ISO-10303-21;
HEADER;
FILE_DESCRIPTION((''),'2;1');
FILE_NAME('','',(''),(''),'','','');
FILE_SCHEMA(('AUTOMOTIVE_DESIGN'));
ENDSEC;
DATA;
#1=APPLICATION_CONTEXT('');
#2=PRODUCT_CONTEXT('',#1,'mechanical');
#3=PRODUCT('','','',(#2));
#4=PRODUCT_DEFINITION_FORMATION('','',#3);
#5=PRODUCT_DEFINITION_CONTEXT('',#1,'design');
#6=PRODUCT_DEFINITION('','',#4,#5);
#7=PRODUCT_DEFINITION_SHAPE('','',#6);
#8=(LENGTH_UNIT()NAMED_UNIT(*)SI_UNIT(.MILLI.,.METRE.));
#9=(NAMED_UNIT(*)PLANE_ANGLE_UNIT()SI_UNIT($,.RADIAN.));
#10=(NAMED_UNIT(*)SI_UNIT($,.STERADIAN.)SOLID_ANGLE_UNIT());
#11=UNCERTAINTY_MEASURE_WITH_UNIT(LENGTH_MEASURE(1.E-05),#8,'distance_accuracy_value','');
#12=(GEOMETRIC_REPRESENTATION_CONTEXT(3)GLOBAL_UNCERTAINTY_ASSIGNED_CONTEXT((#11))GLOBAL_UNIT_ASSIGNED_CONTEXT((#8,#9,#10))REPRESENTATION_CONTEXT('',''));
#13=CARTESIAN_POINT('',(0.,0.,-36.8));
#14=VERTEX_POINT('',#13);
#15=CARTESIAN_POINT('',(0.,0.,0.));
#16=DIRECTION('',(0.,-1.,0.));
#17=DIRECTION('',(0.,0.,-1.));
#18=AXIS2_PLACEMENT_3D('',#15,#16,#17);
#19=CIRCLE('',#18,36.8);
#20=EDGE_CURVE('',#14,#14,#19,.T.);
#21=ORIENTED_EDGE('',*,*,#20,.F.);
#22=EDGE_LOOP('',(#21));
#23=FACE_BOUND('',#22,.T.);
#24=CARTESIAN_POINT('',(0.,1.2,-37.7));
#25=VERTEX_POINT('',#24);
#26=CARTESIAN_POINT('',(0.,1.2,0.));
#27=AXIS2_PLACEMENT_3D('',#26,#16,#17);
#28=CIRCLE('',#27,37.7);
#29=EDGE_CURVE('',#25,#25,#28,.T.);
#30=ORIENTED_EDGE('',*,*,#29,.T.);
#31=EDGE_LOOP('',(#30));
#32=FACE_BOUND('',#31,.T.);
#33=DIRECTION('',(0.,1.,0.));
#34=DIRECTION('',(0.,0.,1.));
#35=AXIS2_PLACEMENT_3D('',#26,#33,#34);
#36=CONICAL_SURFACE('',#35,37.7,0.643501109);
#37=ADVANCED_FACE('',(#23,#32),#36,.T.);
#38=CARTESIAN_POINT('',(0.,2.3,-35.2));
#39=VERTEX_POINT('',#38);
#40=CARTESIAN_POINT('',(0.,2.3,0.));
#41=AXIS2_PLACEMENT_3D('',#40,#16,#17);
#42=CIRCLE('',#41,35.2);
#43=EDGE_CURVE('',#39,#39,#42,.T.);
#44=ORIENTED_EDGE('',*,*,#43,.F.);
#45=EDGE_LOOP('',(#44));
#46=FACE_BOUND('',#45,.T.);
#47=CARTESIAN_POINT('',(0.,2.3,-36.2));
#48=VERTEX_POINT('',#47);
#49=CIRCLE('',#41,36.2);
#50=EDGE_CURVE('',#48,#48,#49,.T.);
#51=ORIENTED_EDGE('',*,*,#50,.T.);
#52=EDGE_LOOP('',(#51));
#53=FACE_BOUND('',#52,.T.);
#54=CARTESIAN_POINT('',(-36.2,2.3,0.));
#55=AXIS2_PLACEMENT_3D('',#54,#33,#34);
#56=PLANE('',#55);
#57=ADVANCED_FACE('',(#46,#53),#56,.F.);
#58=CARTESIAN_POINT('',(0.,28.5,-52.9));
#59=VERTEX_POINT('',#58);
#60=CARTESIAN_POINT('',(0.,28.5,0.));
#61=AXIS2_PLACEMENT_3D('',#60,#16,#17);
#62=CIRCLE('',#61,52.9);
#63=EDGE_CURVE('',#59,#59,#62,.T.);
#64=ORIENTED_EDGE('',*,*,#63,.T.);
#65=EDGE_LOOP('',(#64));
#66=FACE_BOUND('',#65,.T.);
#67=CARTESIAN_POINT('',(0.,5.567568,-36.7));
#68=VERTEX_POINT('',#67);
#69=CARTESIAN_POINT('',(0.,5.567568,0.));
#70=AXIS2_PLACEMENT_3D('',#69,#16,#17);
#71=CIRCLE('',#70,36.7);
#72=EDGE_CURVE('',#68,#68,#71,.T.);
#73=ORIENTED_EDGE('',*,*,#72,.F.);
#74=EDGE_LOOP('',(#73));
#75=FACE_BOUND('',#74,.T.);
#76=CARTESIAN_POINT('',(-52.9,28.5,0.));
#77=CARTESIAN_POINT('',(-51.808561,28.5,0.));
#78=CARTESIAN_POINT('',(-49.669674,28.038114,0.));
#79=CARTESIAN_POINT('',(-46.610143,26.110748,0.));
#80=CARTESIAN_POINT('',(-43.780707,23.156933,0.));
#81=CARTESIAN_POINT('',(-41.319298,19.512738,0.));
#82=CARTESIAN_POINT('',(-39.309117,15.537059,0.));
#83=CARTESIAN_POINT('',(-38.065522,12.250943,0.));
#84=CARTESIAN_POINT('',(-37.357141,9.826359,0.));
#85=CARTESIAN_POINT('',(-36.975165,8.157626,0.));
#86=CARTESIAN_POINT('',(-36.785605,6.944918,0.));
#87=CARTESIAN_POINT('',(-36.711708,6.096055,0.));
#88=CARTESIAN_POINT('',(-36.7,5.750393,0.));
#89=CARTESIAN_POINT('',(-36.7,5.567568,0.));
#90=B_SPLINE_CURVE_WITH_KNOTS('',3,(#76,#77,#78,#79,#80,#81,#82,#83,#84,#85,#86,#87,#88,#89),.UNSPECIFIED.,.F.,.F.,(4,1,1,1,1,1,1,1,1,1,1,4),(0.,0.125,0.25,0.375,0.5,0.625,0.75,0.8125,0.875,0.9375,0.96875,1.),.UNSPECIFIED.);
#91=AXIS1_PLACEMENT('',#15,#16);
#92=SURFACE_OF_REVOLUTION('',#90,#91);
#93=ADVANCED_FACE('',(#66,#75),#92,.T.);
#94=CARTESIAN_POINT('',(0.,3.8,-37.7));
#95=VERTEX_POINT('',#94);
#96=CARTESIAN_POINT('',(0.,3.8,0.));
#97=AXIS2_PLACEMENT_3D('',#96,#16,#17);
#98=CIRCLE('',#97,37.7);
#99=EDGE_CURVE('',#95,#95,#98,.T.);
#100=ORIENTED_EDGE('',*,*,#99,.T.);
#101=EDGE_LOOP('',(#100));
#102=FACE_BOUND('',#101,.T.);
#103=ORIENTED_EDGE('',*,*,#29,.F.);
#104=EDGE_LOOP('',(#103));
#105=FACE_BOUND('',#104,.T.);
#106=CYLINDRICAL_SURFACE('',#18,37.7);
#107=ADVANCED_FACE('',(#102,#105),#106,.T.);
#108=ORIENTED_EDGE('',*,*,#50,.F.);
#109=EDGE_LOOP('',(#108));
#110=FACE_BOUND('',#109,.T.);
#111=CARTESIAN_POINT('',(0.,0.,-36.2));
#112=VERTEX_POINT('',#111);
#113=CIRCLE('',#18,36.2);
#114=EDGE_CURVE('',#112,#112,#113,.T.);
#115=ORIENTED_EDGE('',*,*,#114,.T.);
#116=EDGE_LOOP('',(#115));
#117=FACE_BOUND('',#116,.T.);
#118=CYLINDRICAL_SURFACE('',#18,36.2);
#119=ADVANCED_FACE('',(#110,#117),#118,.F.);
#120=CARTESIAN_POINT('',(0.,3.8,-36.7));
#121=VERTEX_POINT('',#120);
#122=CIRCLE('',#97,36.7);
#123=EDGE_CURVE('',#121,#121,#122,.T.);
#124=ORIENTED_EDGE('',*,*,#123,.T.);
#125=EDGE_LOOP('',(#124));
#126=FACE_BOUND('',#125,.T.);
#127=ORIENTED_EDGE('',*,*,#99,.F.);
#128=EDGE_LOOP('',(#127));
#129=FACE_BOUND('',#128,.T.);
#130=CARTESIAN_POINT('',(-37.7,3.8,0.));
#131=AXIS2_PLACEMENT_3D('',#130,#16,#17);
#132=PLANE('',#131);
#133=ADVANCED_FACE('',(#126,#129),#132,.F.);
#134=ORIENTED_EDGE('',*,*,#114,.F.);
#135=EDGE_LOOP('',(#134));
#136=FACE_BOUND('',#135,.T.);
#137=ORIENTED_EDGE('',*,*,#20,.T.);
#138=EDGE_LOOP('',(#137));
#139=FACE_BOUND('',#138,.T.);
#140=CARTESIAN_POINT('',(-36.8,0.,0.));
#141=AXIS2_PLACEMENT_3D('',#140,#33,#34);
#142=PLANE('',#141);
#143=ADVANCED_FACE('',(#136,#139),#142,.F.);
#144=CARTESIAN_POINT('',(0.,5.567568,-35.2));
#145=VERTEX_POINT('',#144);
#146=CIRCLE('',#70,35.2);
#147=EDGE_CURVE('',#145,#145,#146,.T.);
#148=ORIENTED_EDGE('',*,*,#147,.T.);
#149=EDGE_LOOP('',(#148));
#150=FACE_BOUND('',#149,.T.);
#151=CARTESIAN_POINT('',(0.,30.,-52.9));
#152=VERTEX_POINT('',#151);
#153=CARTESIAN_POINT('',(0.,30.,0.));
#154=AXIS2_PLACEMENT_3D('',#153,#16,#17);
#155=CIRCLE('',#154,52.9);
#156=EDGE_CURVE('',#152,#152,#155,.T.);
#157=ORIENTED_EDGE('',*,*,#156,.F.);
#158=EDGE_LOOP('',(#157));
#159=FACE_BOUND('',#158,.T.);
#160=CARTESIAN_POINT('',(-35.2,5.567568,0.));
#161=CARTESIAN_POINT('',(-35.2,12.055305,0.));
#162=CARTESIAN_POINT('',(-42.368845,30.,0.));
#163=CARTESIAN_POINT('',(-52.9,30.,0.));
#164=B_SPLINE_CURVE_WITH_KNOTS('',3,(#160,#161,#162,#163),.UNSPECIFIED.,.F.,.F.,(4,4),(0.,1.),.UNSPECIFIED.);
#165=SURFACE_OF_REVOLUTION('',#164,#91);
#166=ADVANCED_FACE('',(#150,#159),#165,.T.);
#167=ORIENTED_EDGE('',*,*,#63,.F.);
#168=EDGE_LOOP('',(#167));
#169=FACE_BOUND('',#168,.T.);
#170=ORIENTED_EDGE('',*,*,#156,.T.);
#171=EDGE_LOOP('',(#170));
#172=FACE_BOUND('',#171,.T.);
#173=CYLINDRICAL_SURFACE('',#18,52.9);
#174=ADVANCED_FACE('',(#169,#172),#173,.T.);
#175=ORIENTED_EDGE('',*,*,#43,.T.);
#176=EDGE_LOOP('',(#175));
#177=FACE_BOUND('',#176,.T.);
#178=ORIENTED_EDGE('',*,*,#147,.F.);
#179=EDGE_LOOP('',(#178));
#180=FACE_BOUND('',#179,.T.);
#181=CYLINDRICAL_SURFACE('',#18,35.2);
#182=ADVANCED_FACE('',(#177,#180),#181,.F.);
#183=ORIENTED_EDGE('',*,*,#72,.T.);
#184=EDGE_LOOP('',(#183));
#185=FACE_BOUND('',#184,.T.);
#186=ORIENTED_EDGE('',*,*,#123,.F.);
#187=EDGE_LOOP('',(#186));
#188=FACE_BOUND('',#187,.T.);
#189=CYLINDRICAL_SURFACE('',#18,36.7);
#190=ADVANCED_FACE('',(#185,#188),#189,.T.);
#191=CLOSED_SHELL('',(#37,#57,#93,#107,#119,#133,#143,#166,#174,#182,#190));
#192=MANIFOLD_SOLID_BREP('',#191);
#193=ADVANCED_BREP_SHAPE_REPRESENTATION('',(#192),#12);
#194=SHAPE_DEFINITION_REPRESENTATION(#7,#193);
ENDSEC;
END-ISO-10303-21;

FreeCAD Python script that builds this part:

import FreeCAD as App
import Part
import Sketcher
from FreeCAD import Vector
Q = App.Units.Quantity

doc = App.newDocument("Part")
params = doc.addObject("Spreadsheet::Sheet", "Params")
for row, (alias, value) in enumerate([
    ("sketch1_width", "1 mm"),
    ("sketch1_width2", "0.6 mm"),
    ("sketch1_height", "2.3 mm"),
    ("sketch1_height2", "2.6 mm"),
    ("sketch1_length", "1.5 mm"),
    ("revolution_angle", "360 deg"),
], start=1):
    params.set(f"A{row}", alias)
    params.set(f"B{row}", "=" + value)
    params.setAlias(f"B{row}", alias)

body = doc.addObject("PartDesign::Body", "Body")

# Sketch on XY plane
sketch1 = doc.addObject("Sketcher::SketchObject", "Sketch")
body.addObject(sketch1)
sketch1.AttachmentSupport = (doc.XY_Plane, [""])
sketch1.MapMode = "FlatFace"
sketch1.addGeometry([
    Part.LineSegment(Vector(-36.8, 0, 0), Vector(-36.2, 0, 0)),  # 0
    Part.LineSegment(Vector(-36.2, 0, 0), Vector(-36.2, 2.3, 0)),  # 1
    Part.LineSegment(Vector(-36.2, 2.3, 0), Vector(-35.2, 2.3, 0)),  # 2
    Part.LineSegment(Vector(-35.2, 2.3, 0), Vector(-35.2, 5.567568, 0)),  # 3
    Part.BSplineCurve([Vector(-35.2, 5.567568, 0), Vector(-35.2, 12.055305, 0), Vector(-42.368845, 30, 0), Vector(-52.9, 30, 0)], [4, 4], [0, 1], False, 3, [1, 1, 1, 1], False),  # 4
    Part.LineSegment(Vector(-52.9, 30, 0), Vector(-52.9, 28.5, 0)),  # 5
    Part.BSplineCurve([Vector(-36.7, 5.567568, 0), Vector(-36.7, 5.750393, 0), Vector(-36.711708, 6.096055, 0), Vector(-36.785605, 6.944918, 0), Vector(-36.975165, 8.157626, 0), Vector(-37.357141, 9.826359, 0), Vector(-38.065522, 12.250943, 0), Vector(-39.309117, 15.537059, 0), Vector(-41.319298, 19.512738, 0), Vector(-43.780707, 23.156933, 0), Vector(-46.610143, 26.110748, 0), Vector(-49.669674, 28.038114, 0), Vector(-51.808561, 28.5, 0), Vector(-52.9, 28.5, 0)], [4, 1, 1, 1, 1, 1, 1, 1, 1, 1, 1, 4], [0, 0.03125, 0.0625, 0.125, 0.1875, 0.25, 0.375, 0.5, 0.625, 0.75, 0.875, 1], False, 3, [1, 1, 1, 1, 1, 1, 1, 1, 1, 1, 1, 1, 1, 1], False),  # 6
    Part.LineSegment(Vector(-36.7, 5.567568, 0), Vector(-36.7, 3.8, 0)),  # 7
    Part.LineSegment(Vector(-36.7, 3.8, 0), Vector(-37.7, 3.8, 0)),  # 8
    Part.LineSegment(Vector(-37.7, 3.8, 0), Vector(-37.7, 1.2, 0)),  # 9
    Part.LineSegment(Vector(-37.7, 1.2, 0), Vector(-36.8, 0, 0)),  # 10
], False)
sketch1.addConstraint([
    Sketcher.Constraint("Block", 4),
    Sketcher.Constraint("Block", 6),
    Sketcher.Constraint("Coincident", 0, 2, 1, 1),
    Sketcher.Constraint("Coincident", 1, 2, 2, 1),
    Sketcher.Constraint("Coincident", 2, 2, 3, 1),
    Sketcher.Constraint("Coincident", 3, 2, 4, 1),
    Sketcher.Constraint("Coincident", 4, 2, 5, 1),
    Sketcher.Constraint("Coincident", 5, 2, 6, 2),
    Sketcher.Constraint("Coincident", 6, 1, 7, 1),
    Sketcher.Constraint("Coincident", 7, 2, 8, 1),
    Sketcher.Constraint("Coincident", 8, 2, 9, 1),
    Sketcher.Constraint("Coincident", 9, 2, 10, 1),
    Sketcher.Constraint("Coincident", 10, 2, 0, 1),
    Sketcher.Constraint("Horizontal", 0),
    Sketcher.Constraint("Vertical", 1),
    Sketcher.Constraint("Horizontal", 2),
    Sketcher.Constraint("Vertical", 3),
    Sketcher.Constraint("Vertical", 7),
    Sketcher.Constraint("Horizontal", 8),
    Sketcher.Constraint("Vertical", 9),
    Sketcher.Constraint("PointOnObject", 0, 2, -1),
    Sketcher.Constraint("Equal", 2, 8),
    Sketcher.Constraint("DistanceX", 2, 1, 2, 2, Q("1 mm")),
    Sketcher.Constraint("DistanceX", 0, 1, 0, 2, Q("0.6 mm")),
    Sketcher.Constraint("DistanceY", 1, 1, 1, 2, Q("2.3 mm")),
    Sketcher.Constraint("DistanceY", 9, 2, 9, 1, Q("2.6 mm")),
    Sketcher.Constraint("Distance", 10, Q("1.5 mm")),
])
sketch1.setExpression("Constraints[22]", "Params.sketch1_width")
sketch1.setExpression("Constraints[23]", "Params.sketch1_width2")
sketch1.setExpression("Constraints[24]", "Params.sketch1_height")
sketch1.setExpression("Constraints[25]", "Params.sketch1_height2")
sketch1.setExpression("Constraints[26]", "Params.sketch1_length")
revolution = doc.addObject("PartDesign::Revolution", "Revolution")
body.addObject(revolution)
revolution.Profile = sketch1
revolution.ReferenceAxis = (sketch1, ["V_Axis"])
revolution.setExpression("Angle", "Params.revolution_angle")

doc.recompute()
